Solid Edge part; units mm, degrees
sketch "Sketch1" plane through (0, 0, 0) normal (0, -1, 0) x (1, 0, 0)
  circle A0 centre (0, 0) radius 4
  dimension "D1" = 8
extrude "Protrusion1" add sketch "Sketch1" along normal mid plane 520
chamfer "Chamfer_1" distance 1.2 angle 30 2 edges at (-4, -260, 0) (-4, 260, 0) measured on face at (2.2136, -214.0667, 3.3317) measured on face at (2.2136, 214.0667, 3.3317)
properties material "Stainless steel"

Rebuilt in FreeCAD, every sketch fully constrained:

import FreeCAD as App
import Part
import Sketcher
from FreeCAD import Vector


def edges_at(feature, points):
    """Names of the edges that pass closest to the given points."""
    edges = feature.Shape.Edges
    near = lambda p: min(range(len(edges)), key=lambda i: edges[i].distToShape(Part.Vertex(*p))[0])
    return sorted({f"Edge{near(p) + 1}" for p in points})

doc = App.newDocument("Part")
body = doc.addObject("PartDesign::Body", "Body")

sketch1 = body.newObject("Sketcher::SketchObject", "Sketch")
sketch1.AttachmentSupport = (doc.getObject("XZ_Plane"), [""])
sketch1.MapMode = "FlatFace"
sketch1.addGeometry(Part.Circle(Vector(0, 0, 0), Vector(0, 0, 1), 4), False)
sketch1.addConstraint([
    Sketcher.Constraint("Coincident", 0, 3, -1, 1),
    Sketcher.Constraint("Diameter", 0, 8.0),
])
pad1 = body.newObject("PartDesign::Pad", "Pad")
pad1.Profile = sketch1
pad1.Length = 520
pad1.Midplane = True
doc.recompute()

chamfer = body.newObject("PartDesign::Chamfer", "Chamfer")
chamfer.Base = (pad1, edges_at(pad1, [(-4, -260, 0), (-4, 260, 0)]))
chamfer.ChamferType = "Distance and Angle"
chamfer.Size = 1.2
chamfer.Angle = 30

doc.recompute()
